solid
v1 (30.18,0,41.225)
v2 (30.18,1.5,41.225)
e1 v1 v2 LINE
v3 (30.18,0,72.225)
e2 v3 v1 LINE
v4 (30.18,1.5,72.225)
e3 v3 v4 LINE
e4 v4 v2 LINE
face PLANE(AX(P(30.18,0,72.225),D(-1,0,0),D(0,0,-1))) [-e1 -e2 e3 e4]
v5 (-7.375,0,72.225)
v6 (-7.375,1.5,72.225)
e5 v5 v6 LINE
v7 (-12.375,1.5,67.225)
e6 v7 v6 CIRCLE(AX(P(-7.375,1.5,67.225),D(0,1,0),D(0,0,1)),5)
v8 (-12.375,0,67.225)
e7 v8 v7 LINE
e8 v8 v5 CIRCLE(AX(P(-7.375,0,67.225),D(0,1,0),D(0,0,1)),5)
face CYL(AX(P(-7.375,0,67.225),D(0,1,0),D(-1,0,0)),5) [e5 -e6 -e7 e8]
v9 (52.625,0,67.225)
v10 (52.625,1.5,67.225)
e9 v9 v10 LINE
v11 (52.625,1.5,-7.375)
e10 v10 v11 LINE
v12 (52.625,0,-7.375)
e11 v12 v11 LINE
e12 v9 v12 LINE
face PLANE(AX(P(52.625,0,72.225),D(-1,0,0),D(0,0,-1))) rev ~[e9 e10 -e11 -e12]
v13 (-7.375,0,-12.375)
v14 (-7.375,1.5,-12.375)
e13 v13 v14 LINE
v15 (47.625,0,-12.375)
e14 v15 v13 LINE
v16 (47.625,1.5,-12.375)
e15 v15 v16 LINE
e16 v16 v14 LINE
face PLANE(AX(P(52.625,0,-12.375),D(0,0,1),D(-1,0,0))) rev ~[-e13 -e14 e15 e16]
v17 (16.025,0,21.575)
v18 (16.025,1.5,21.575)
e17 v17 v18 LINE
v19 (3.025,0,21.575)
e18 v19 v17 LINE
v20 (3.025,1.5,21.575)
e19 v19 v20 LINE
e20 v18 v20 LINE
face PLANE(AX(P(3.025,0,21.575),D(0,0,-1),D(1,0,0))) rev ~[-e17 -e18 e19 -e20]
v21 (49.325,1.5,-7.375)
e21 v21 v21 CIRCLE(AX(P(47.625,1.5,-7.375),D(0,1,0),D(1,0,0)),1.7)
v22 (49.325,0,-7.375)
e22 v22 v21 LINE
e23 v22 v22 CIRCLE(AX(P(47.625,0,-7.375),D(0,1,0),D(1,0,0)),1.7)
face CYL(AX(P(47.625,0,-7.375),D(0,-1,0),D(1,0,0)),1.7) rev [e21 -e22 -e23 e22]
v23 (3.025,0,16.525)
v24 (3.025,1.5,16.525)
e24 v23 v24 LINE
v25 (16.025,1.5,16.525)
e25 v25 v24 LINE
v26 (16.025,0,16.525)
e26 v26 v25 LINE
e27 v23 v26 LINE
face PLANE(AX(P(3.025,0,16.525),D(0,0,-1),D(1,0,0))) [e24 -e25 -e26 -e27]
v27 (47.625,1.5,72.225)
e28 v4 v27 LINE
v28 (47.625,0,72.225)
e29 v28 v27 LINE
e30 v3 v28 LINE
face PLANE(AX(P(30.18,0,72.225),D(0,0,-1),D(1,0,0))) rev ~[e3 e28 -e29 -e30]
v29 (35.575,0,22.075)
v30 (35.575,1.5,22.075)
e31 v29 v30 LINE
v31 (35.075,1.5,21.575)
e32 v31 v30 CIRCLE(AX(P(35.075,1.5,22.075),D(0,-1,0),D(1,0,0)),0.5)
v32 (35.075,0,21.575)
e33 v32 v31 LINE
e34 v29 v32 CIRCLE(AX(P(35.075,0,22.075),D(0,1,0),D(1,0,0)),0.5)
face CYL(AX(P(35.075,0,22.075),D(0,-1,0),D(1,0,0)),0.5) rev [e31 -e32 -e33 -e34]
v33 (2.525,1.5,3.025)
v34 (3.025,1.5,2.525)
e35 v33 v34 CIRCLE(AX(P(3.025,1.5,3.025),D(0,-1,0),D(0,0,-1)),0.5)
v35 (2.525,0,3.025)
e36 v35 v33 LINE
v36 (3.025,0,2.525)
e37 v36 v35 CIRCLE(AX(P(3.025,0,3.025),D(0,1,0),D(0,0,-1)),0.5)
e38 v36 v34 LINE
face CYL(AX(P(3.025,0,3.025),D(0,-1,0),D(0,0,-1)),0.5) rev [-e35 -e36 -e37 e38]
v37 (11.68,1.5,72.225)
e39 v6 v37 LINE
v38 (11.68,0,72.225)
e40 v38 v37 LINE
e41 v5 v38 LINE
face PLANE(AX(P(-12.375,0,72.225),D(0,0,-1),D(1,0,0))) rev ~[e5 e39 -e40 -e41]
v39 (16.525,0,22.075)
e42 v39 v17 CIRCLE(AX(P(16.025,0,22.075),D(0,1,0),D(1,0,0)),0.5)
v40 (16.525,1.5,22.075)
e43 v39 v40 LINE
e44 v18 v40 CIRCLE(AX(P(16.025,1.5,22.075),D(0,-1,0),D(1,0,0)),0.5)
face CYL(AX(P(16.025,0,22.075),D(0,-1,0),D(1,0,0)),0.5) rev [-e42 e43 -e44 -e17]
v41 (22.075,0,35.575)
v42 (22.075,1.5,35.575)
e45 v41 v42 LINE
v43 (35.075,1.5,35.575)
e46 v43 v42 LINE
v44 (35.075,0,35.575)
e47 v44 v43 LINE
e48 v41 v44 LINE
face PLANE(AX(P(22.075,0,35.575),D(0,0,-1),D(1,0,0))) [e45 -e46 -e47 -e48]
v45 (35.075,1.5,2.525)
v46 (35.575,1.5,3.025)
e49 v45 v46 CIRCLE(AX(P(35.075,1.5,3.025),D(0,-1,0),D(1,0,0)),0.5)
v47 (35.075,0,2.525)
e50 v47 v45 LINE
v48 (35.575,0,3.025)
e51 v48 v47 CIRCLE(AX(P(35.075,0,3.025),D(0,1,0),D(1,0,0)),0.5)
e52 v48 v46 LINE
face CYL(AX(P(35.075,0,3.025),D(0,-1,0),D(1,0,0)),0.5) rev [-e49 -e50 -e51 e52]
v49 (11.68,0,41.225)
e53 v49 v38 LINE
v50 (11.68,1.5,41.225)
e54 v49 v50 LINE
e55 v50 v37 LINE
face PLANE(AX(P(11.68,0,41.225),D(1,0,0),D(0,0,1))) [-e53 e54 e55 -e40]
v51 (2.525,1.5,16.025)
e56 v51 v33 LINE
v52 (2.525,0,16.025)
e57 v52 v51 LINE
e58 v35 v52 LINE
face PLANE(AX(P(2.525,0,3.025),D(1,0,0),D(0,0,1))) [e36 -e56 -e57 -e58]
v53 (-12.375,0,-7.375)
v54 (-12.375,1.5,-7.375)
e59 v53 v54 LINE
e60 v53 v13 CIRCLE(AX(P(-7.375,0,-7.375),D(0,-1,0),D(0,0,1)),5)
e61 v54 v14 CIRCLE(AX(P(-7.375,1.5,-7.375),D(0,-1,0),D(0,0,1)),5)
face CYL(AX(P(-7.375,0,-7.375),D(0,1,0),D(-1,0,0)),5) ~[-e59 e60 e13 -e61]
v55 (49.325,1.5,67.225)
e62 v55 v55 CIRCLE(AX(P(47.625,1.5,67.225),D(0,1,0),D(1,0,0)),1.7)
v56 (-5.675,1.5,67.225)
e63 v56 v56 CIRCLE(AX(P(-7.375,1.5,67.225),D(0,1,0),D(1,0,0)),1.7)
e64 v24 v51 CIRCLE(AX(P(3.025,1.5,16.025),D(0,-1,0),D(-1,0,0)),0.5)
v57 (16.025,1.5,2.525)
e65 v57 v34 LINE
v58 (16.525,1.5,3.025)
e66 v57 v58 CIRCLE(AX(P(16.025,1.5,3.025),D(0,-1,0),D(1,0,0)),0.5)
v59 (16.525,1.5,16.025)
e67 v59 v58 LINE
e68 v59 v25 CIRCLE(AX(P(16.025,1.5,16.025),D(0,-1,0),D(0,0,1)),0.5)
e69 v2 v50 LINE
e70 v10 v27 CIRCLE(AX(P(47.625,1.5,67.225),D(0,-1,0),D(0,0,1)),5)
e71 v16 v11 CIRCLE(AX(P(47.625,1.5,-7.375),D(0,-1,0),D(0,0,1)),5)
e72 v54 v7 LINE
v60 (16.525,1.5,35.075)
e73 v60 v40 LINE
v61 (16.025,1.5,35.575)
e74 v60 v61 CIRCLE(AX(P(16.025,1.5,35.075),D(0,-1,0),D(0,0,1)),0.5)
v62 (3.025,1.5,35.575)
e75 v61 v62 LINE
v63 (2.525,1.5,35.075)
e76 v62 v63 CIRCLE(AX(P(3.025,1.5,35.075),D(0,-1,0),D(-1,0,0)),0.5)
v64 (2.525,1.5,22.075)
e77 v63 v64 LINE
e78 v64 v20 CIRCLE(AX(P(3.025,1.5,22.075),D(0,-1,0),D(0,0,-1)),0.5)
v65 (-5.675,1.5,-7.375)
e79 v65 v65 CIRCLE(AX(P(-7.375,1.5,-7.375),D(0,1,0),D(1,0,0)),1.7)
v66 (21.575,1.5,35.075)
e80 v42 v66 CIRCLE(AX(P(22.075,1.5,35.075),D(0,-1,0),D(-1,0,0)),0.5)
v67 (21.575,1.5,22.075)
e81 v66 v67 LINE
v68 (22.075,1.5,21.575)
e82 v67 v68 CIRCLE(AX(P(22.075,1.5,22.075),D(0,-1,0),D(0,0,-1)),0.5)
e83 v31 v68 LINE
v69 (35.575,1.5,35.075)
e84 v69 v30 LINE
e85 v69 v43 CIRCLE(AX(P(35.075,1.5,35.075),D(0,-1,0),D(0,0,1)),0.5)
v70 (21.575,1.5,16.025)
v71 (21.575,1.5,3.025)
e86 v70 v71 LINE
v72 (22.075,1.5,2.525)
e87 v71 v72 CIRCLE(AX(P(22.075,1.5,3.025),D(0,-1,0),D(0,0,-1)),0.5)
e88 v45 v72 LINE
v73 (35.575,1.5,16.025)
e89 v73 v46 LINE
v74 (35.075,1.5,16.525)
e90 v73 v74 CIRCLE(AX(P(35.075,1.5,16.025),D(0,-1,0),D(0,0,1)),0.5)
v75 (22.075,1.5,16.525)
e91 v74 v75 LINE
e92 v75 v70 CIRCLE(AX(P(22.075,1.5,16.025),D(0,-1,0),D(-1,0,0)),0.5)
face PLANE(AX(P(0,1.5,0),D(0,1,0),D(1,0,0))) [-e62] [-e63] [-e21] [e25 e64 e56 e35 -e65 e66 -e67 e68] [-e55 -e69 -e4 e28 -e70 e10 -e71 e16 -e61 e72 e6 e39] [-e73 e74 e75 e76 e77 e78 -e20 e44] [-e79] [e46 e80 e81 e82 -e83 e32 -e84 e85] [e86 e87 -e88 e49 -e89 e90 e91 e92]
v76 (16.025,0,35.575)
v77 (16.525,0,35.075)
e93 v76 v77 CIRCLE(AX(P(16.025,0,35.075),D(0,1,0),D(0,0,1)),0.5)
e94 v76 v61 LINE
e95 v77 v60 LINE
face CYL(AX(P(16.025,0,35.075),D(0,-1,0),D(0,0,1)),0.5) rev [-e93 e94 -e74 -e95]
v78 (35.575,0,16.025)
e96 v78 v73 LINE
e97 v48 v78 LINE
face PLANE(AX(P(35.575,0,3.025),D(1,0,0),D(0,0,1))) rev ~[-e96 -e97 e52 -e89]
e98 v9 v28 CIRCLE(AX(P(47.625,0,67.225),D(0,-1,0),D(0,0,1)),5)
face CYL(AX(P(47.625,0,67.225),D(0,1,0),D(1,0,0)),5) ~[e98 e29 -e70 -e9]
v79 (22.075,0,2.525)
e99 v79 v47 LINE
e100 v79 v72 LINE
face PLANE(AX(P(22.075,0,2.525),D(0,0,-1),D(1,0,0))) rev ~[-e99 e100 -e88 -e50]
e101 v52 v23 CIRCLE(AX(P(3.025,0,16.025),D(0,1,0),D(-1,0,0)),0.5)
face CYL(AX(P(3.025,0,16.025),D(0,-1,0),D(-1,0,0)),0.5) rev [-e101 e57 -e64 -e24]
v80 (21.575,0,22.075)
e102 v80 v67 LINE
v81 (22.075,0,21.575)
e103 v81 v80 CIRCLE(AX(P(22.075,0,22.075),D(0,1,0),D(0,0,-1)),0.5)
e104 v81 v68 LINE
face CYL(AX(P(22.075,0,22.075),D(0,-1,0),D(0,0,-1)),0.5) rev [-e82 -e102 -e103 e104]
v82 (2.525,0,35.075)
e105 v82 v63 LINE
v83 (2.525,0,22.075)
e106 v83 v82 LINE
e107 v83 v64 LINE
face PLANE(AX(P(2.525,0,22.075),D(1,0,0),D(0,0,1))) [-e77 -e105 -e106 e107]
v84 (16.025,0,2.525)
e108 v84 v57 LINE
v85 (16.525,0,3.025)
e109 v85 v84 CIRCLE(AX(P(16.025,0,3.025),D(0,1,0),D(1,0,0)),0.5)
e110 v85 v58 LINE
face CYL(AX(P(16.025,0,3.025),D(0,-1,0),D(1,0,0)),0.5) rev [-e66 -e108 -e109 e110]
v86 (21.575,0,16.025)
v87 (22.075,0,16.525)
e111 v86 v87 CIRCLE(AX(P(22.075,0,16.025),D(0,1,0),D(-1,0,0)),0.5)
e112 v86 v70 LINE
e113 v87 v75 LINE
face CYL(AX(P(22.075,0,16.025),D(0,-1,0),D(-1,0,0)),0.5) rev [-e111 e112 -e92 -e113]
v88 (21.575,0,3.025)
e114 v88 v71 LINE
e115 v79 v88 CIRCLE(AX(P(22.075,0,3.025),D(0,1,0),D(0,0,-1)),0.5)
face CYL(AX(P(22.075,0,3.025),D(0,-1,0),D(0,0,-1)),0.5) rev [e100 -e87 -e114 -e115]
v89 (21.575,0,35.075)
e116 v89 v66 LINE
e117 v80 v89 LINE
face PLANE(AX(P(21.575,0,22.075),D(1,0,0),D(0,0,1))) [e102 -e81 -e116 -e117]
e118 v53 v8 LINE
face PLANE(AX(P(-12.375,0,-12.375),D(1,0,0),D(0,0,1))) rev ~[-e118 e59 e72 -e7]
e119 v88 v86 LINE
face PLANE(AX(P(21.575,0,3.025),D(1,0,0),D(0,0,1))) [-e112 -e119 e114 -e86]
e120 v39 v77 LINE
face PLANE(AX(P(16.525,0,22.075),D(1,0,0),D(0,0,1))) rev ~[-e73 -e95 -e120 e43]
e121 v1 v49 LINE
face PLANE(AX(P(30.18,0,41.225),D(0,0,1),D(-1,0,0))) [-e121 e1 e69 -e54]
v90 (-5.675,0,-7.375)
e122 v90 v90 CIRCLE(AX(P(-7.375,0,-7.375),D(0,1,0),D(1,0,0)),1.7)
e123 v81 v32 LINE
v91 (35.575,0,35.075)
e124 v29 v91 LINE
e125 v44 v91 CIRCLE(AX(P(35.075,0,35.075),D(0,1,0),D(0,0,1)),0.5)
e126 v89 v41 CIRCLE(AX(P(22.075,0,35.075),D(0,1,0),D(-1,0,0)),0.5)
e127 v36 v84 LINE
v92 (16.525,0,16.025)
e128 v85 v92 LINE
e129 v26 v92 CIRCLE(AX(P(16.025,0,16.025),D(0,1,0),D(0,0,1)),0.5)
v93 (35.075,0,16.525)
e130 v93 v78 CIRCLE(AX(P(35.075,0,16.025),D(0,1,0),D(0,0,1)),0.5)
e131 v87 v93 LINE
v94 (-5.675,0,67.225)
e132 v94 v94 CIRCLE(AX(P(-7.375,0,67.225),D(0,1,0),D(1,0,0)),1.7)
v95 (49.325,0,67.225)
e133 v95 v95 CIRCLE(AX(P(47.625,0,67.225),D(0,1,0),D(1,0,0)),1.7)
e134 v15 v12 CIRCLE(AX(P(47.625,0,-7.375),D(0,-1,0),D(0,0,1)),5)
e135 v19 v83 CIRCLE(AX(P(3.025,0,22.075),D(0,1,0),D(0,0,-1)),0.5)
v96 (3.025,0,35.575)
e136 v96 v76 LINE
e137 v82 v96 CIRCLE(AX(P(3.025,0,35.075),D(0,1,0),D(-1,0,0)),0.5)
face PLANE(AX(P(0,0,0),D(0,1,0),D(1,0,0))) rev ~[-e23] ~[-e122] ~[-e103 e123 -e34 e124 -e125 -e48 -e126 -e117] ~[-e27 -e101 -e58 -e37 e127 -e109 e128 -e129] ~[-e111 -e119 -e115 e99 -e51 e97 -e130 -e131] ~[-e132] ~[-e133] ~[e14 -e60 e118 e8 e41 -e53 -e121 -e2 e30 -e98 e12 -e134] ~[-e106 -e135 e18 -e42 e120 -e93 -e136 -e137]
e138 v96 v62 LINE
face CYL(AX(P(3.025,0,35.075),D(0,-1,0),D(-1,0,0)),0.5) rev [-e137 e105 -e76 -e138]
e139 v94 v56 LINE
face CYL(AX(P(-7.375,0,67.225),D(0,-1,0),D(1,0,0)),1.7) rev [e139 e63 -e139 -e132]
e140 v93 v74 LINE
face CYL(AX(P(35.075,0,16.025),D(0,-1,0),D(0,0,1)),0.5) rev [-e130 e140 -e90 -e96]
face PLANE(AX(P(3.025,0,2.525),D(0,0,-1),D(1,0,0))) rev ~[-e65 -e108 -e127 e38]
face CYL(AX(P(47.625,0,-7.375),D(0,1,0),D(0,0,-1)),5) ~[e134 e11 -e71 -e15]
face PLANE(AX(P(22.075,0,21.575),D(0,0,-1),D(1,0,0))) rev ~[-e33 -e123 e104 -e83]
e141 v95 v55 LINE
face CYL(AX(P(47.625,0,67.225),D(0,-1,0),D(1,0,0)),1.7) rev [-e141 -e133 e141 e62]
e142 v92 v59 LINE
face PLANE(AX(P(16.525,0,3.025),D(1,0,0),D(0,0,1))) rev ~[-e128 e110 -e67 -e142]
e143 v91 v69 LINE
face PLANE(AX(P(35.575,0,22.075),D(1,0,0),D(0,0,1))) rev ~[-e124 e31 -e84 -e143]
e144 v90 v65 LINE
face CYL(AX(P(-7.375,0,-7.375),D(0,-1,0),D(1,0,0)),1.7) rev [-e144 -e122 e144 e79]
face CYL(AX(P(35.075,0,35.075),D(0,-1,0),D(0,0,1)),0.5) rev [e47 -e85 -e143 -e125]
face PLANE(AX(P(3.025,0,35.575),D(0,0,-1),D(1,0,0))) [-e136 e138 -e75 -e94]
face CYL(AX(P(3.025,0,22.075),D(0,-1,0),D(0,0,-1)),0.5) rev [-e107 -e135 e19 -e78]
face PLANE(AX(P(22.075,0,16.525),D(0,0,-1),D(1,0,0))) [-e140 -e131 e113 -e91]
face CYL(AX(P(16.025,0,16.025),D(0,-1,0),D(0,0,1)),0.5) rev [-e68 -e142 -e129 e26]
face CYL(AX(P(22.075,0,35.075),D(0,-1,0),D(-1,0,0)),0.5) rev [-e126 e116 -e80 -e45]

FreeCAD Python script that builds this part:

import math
import FreeCAD as App
import Part
import Sketcher

V = App.Vector


def edges_at(feature, points):
    """Names of the edges that pass closest to the given points."""
    edges = feature.Shape.Edges
    near = lambda p: min(range(len(edges)), key=lambda i: edges[i].distToShape(Part.Vertex(*p))[0])
    return sorted({f"Edge{near(p) + 1}" for p in points})


def add_polygon(sketch, points):
    """Adds a closed chain of lines whose ends are joined by coincident constraints."""
    first, n = sketch.GeometryCount, len(points)
    for a, b in zip(points, points[1:] + points[:1]):
        sketch.addGeometry(Part.LineSegment(App.Vector(*a, 0), App.Vector(*b, 0)), False)
    for i in range(n):
        sketch.addConstraint(Sketcher.Constraint("Coincident", first + i, 2, first + (i + 1) % n, 1))

doc = App.newDocument("Part")
body = doc.addObject("PartDesign::Body", "Body")

# Sketch on XZ plane
sketch1 = body.newObject("Sketcher::SketchObject", "Sketch")
sketch1.AttachmentSupport = (doc.getObject("XZ_Plane"), [""])
sketch1.MapMode = "FlatFace"
add_polygon(sketch1, [(-12.375, -12.375), (-12.375, 72.225), (11.68, 72.225), (11.68, 41.225), (30.18, 41.225), (30.18, 72.225), (52.625, 72.225), (52.625, -12.375)])  # lines 0-7
sketch1.addGeometry(Part.Circle(V(-7.375, 67.225, 0), V(0, 0, 1), 1.7), False)  # 8
sketch1.addGeometry(Part.Circle(V(47.625, 67.225, 0), V(0, 0, 1), 1.7), False)  # 9
sketch1.addGeometry(Part.Circle(V(-7.375, -7.375, 0), V(0, 0, 1), 1.7), False)  # 10
sketch1.addGeometry(Part.Circle(V(47.625, -7.375, 0), V(0, 0, 1), 1.7), False)  # 11
sketch1.addConstraint([
    Sketcher.Constraint("Vertical", 0),
    Sketcher.Constraint("Horizontal", 1),
    Sketcher.Constraint("Vertical", 2),
    Sketcher.Constraint("Horizontal", 3),
    Sketcher.Constraint("Vertical", 4),
    Sketcher.Constraint("Horizontal", 5),
    Sketcher.Constraint("Vertical", 6),
    Sketcher.Constraint("Horizontal", 7),
    Sketcher.Constraint("Equal", 8, 9),
    Sketcher.Constraint("Equal", 9, 10),
    Sketcher.Constraint("Equal", 10, 11),
    Sketcher.Constraint("Horizontal", 8, 3, 9, 3),
    Sketcher.Constraint("Horizontal", 10, 3, 11, 3),
    Sketcher.Constraint("Horizontal", 1, 2, 4, 2),
    Sketcher.Constraint("Vertical", 8, 3, 10, 3),
    Sketcher.Constraint("Vertical", 9, 3, 11, 3),
    Sketcher.Constraint("Diameter", 8, 3.4),
    Sketcher.Constraint("DistanceX", 7, 2, 7, 1, 65.0),
    Sketcher.Constraint("DistanceY", 2, 2, 2, 1, 31.0),
    Sketcher.Constraint("DistanceX", 3, 1, 3, 2, 18.5),
    Sketcher.Constraint("DistanceY", 0, 1, 0, 2, 84.6),
    Sketcher.Constraint("DistanceX", 0, 2, 8, 3, 5.0),
    Sketcher.Constraint("DistanceY", 8, 3, 0, 2, 5.0),
    Sketcher.Constraint("DistanceX", 9, 3, 5, 2, 5.0),
    Sketcher.Constraint("DistanceY", 6, 2, 11, 3, 5.0),
    Sketcher.Constraint("DistanceX", 1, 1, 1, 2, 24.055),
    Sketcher.Constraint("DistanceX", -1, 1, 1, 2, 11.68),
    Sketcher.Constraint("DistanceY", -1, 1, 8, 3, 67.225),
])
pad1 = body.newObject("PartDesign::Pad", "Pad")
pad1.Profile = sketch1
pad1.Length = 1.5
pad1.Reversed = True

# Sketch on XZ plane
sketch2 = body.newObject("Sketcher::SketchObject", "Sketch001")
sketch2.AttachmentSupport = (doc.getObject("XZ_Plane"), [""])
sketch2.MapMode = "FlatFace"
sketch2.addGeometry([
    Part.LineSegment(V(16.025, 2.525, 0), V(3.025, 2.525, 0)),  # 0
    Part.ArcOfCircle(Part.Circle(V(3.025, 3.025, 0), V(0, 0, 1), 0.5), math.radians(180), math.radians(270)),  # 1
    Part.LineSegment(V(2.525, 3.025, 0), V(2.525, 16.025, 0)),  # 2
    Part.ArcOfCircle(Part.Circle(V(3.025, 16.025, 0), V(0, 0, 1), 0.5), math.radians(90), math.radians(180)),  # 3
    Part.LineSegment(V(3.025, 16.525, 0), V(16.025, 16.525, 0)),  # 4
    Part.ArcOfCircle(Part.Circle(V(16.025, 16.025, 0), V(0, 0, 1), 0.5), math.radians(0), math.radians(90)),  # 5
    Part.LineSegment(V(16.525, 16.025, 0), V(16.525, 3.025, 0)),  # 6
    Part.ArcOfCircle(Part.Circle(V(16.025, 3.025, 0), V(0, 0, 1), 0.5), math.radians(-90), math.radians(0)),  # 7
    Part.LineSegment(V(35.075, 2.525, 0), V(22.075, 2.525, 0)),  # 8
    Part.ArcOfCircle(Part.Circle(V(22.075, 3.025, 0), V(0, 0, 1), 0.5), math.radians(180), math.radians(270)),  # 9
    Part.LineSegment(V(21.575, 3.025, 0), V(21.575, 16.025, 0)),  # 10
    Part.ArcOfCircle(Part.Circle(V(22.075, 16.025, 0), V(0, 0, 1), 0.5), math.radians(90), math.radians(180)),  # 11
    Part.LineSegment(V(22.075, 16.525, 0), V(35.075, 16.525, 0)),  # 12
    Part.ArcOfCircle(Part.Circle(V(35.075, 16.025, 0), V(0, 0, 1), 0.5), math.radians(0), math.radians(90)),  # 13
    Part.LineSegment(V(35.575, 16.025, 0), V(35.575, 3.025, 0)),  # 14
    Part.ArcOfCircle(Part.Circle(V(35.075, 3.025, 0), V(0, 0, 1), 0.5), math.radians(-90), math.radians(0)),  # 15
    Part.LineSegment(V(16.025, 21.575, 0), V(3.025, 21.575, 0)),  # 16
    Part.ArcOfCircle(Part.Circle(V(3.025, 22.075, 0), V(0, 0, 1), 0.5), math.radians(180), math.radians(270)),  # 17
    Part.LineSegment(V(2.525, 22.075, 0), V(2.525, 35.075, 0)),  # 18
    Part.ArcOfCircle(Part.Circle(V(3.025, 35.075, 0), V(0, 0, 1), 0.5), math.radians(90), math.radians(180)),  # 19
    Part.LineSegment(V(3.025, 35.575, 0), V(16.025, 35.575, 0)),  # 20
    Part.ArcOfCircle(Part.Circle(V(16.025, 35.075, 0), V(0, 0, 1), 0.5), math.radians(0), math.radians(90)),  # 21
    Part.LineSegment(V(16.525, 35.075, 0), V(16.525, 22.075, 0)),  # 22
    Part.ArcOfCircle(Part.Circle(V(16.025, 22.075, 0), V(0, 0, 1), 0.5), math.radians(-90), math.radians(0)),  # 23
    Part.LineSegment(V(35.075, 21.575, 0), V(22.075, 21.575, 0)),  # 24
    Part.ArcOfCircle(Part.Circle(V(22.075, 22.075, 0), V(0, 0, 1), 0.5), math.radians(180), math.radians(270)),  # 25
    Part.LineSegment(V(21.575, 22.075, 0), V(21.575, 35.075, 0)),  # 26
    Part.ArcOfCircle(Part.Circle(V(22.075, 35.075, 0), V(0, 0, 1), 0.5), math.radians(90), math.radians(180)),  # 27
    Part.LineSegment(V(22.075, 35.575, 0), V(35.075, 35.575, 0)),  # 28
    Part.ArcOfCircle(Part.Circle(V(35.075, 35.075, 0), V(0, 0, 1), 0.5), math.radians(0), math.radians(90)),  # 29
    Part.LineSegment(V(35.575, 35.075, 0), V(35.575, 22.075, 0)),  # 30
    Part.ArcOfCircle(Part.Circle(V(35.075, 22.075, 0), V(0, 0, 1), 0.5), math.radians(-90), math.radians(0)),  # 31
], False)
sketch2.addConstraint([
    Sketcher.Constraint("Tangent", 0, 2, 1, 2),
    Sketcher.Constraint("Tangent", 1, 1, 2, 1),
    Sketcher.Constraint("Tangent", 2, 2, 3, 2),
    Sketcher.Constraint("Tangent", 3, 1, 4, 1),
    Sketcher.Constraint("Tangent", 4, 2, 5, 2),
    Sketcher.Constraint("Tangent", 5, 1, 6, 1),
    Sketcher.Constraint("Tangent", 6, 2, 7, 2),
    Sketcher.Constraint("Tangent", 7, 1, 0, 1),
    Sketcher.Constraint("Tangent", 8, 2, 9, 2),
    Sketcher.Constraint("Tangent", 9, 1, 10, 1),
    Sketcher.Constraint("Tangent", 10, 2, 11, 2),
    Sketcher.Constraint("Tangent", 11, 1, 12, 1),
    Sketcher.Constraint("Tangent", 12, 2, 13, 2),
    Sketcher.Constraint("Tangent", 13, 1, 14, 1),
    Sketcher.Constraint("Tangent", 14, 2, 15, 2),
    Sketcher.Constraint("Tangent", 15, 1, 8, 1),
    Sketcher.Constraint("Tangent", 16, 2, 17, 2),
    Sketcher.Constraint("Tangent", 17, 1, 18, 1),
    Sketcher.Constraint("Tangent", 18, 2, 19, 2),
    Sketcher.Constraint("Tangent", 19, 1, 20, 1),
    Sketcher.Constraint("Tangent", 20, 2, 21, 2),
    Sketcher.Constraint("Tangent", 21, 1, 22, 1),
    Sketcher.Constraint("Tangent", 22, 2, 23, 2),
    Sketcher.Constraint("Tangent", 23, 1, 16, 1),
    Sketcher.Constraint("Tangent", 24, 2, 25, 2),
    Sketcher.Constraint("Tangent", 25, 1, 26, 1),
    Sketcher.Constraint("Tangent", 26, 2, 27, 2),
    Sketcher.Constraint("Tangent", 27, 1, 28, 1),
    Sketcher.Constraint("Tangent", 28, 2, 29, 2),
    Sketcher.Constraint("Tangent", 29, 1, 30, 1),
    Sketcher.Constraint("Tangent", 30, 2, 31, 2),
    Sketcher.Constraint("Tangent", 31, 1, 24, 1),
    Sketcher.Constraint("Horizontal", 0),
    Sketcher.Constraint("Vertical", 2),
    Sketcher.Constraint("Horizontal", 4),
    Sketcher.Constraint("Vertical", 6),
    Sketcher.Constraint("Horizontal", 8),
    Sketcher.Constraint("Vertical", 10),
    Sketcher.Constraint("Horizontal", 12),
    Sketcher.Constraint("Vertical", 14),
    Sketcher.Constraint("Horizontal", 16),
    Sketcher.Constraint("Vertical", 18),
    Sketcher.Constraint("Horizontal", 20),
    Sketcher.Constraint("Vertical", 22),
    Sketcher.Constraint("Horizontal", 24),
    Sketcher.Constraint("Vertical", 26),
    Sketcher.Constraint("Horizontal", 28),
    Sketcher.Constraint("Vertical", 30),
    Sketcher.Constraint("Equal", 1, 3),
    Sketcher.Constraint("Equal", 3, 5),
    Sketcher.Constraint("Equal", 5, 7),
    Sketcher.Constraint("Equal", 7, 9),
    Sketcher.Constraint("Equal", 9, 11),
    Sketcher.Constraint("Equal", 11, 13),
    Sketcher.Constraint("Equal", 13, 15),
    Sketcher.Constraint("Equal", 15, 17),
    Sketcher.Constraint("Equal", 17, 19),
    Sketcher.Constraint("Equal", 19, 21),
    Sketcher.Constraint("Equal", 21, 23),
    Sketcher.Constraint("Equal", 23, 25),
    Sketcher.Constraint("Equal", 25, 27),
    Sketcher.Constraint("Equal", 27, 29),
    Sketcher.Constraint("Equal", 29, 31),
    Sketcher.Constraint("Horizontal", 7, 3, 9, 3),
    Sketcher.Constraint("Horizontal", 5, 3, 11, 3),
    Sketcher.Constraint("Horizontal", 23, 3, 25, 3),
    Sketcher.Constraint("Horizontal", 21, 3, 27, 3),
    Sketcher.Constraint("Vertical", 3, 3, 17, 3),
    Sketcher.Constraint("Vertical", 7, 3, 21, 3),
    Sketcher.Constraint("Vertical", 11, 3, 25, 3),
    Sketcher.Constraint("Vertical", 15, 3, 29, 3),
    Sketcher.Constraint("Equal", 4, 8),
    Sketcher.Constraint("Equal", 28, 2),
    Sketcher.Constraint("Equal", 14, 18),
    Sketcher.Constraint("Radius", 1, 0.5),
    Sketcher.Constraint("DistanceX", 0, 2, 0, 1, 13.0),
    Sketcher.Constraint("DistanceX", 7, 3, 9, 3, 6.05),
    Sketcher.Constraint("DistanceY", 3, 3, 17, 3, 6.05),
    Sketcher.Constraint("DistanceX", -1, 1, 1, 3, 3.025),
    Sketcher.Constraint("DistanceY", -1, 1, 1, 3, 3.025),
])
pocket1 = body.newObject("PartDesign::Pocket", "Pocket")
pocket1.Profile = sketch2
pocket1.Type = "ThroughAll"
doc.recompute()

fillet = body.newObject("PartDesign::Fillet", "Fillet")
fillet.Base = (pocket1, edges_at(pocket1, [
    (-12.375, 0.75, 72.225),
    (52.625, 0.75, 72.225),
    (52.625, 0.75, -12.375),
    (-12.375, 0.75, -12.375),
]))
fillet.Radius = 5

doc.recompute()
